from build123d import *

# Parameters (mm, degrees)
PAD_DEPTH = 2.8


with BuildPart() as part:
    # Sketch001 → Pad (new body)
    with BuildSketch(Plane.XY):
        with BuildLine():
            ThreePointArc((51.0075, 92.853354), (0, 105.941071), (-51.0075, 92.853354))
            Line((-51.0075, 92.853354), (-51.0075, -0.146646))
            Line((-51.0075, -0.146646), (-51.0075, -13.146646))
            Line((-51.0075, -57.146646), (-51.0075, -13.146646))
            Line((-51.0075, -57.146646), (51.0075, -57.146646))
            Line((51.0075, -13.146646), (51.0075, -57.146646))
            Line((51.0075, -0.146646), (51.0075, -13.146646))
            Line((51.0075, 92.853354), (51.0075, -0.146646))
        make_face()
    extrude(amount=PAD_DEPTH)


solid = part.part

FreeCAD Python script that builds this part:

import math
import FreeCAD as App
import Part
import Sketcher

doc = App.newDocument("Part")
body = doc.addObject("PartDesign::Body", "Body")

# Sketch on XY plane
sketch1 = doc.addObject("Sketcher::SketchObject", "Sketch")
body.addObject(sketch1)
sketch1.AttachmentSupport = (doc.XY_Plane, [""])
sketch1.MapMode = "FlatFace"
sketch1.addGeometry(Part.ArcOfCircle(Part.Circle(App.Vector(0, 0, 0), App.Vector(0, 0, 1), 106), math.radians(61), math.radians(119)), False)
sketch1.addGeometry(Part.LineSegment(App.Vector(-51, 93, 0), App.Vector(-51, -57, 0)), False)
sketch1.addGeometry(Part.LineSegment(App.Vector(-51, -57, 0), App.Vector(51, -57, 0)), False)
sketch1.addGeometry(Part.LineSegment(App.Vector(51, -57, 0), App.Vector(51, 93, 0)), False)
sketch1.addConstraint(Sketcher.Constraint("Coincident", 0, 2, 1, 1))
sketch1.addConstraint(Sketcher.Constraint("Coincident", 1, 2, 2, 1))
sketch1.addConstraint(Sketcher.Constraint("Coincident", 2, 2, 3, 1))
sketch1.addConstraint(Sketcher.Constraint("Coincident", 3, 2, 0, 1))
sketch1.addConstraint(Sketcher.Constraint("Vertical", 1))
sketch1.addConstraint(Sketcher.Constraint("Horizontal", 2))
sketch1.addConstraint(Sketcher.Constraint("Vertical", 3))
sketch1.addConstraint(Sketcher.Constraint("Coincident", 0, 3, -1, 1))
sketch1.addConstraint(Sketcher.Constraint("Horizontal", 0, 2, 3, 2))
sketch1.addConstraint(Sketcher.Constraint("DistanceY", 1, 2, 1, 1, 150.0))
sketch1.addConstraint(Sketcher.Constraint("DistanceX", 2, 1, 2, 2, 102.015))
sketch1.addConstraint(Sketcher.Constraint("Radius", 0, 105.941066))
pad1 = doc.addObject("PartDesign::Pad", "Pad")
body.addObject(pad1)
pad1.Profile = sketch1
pad1.Length = 2.8

doc.recompute()
